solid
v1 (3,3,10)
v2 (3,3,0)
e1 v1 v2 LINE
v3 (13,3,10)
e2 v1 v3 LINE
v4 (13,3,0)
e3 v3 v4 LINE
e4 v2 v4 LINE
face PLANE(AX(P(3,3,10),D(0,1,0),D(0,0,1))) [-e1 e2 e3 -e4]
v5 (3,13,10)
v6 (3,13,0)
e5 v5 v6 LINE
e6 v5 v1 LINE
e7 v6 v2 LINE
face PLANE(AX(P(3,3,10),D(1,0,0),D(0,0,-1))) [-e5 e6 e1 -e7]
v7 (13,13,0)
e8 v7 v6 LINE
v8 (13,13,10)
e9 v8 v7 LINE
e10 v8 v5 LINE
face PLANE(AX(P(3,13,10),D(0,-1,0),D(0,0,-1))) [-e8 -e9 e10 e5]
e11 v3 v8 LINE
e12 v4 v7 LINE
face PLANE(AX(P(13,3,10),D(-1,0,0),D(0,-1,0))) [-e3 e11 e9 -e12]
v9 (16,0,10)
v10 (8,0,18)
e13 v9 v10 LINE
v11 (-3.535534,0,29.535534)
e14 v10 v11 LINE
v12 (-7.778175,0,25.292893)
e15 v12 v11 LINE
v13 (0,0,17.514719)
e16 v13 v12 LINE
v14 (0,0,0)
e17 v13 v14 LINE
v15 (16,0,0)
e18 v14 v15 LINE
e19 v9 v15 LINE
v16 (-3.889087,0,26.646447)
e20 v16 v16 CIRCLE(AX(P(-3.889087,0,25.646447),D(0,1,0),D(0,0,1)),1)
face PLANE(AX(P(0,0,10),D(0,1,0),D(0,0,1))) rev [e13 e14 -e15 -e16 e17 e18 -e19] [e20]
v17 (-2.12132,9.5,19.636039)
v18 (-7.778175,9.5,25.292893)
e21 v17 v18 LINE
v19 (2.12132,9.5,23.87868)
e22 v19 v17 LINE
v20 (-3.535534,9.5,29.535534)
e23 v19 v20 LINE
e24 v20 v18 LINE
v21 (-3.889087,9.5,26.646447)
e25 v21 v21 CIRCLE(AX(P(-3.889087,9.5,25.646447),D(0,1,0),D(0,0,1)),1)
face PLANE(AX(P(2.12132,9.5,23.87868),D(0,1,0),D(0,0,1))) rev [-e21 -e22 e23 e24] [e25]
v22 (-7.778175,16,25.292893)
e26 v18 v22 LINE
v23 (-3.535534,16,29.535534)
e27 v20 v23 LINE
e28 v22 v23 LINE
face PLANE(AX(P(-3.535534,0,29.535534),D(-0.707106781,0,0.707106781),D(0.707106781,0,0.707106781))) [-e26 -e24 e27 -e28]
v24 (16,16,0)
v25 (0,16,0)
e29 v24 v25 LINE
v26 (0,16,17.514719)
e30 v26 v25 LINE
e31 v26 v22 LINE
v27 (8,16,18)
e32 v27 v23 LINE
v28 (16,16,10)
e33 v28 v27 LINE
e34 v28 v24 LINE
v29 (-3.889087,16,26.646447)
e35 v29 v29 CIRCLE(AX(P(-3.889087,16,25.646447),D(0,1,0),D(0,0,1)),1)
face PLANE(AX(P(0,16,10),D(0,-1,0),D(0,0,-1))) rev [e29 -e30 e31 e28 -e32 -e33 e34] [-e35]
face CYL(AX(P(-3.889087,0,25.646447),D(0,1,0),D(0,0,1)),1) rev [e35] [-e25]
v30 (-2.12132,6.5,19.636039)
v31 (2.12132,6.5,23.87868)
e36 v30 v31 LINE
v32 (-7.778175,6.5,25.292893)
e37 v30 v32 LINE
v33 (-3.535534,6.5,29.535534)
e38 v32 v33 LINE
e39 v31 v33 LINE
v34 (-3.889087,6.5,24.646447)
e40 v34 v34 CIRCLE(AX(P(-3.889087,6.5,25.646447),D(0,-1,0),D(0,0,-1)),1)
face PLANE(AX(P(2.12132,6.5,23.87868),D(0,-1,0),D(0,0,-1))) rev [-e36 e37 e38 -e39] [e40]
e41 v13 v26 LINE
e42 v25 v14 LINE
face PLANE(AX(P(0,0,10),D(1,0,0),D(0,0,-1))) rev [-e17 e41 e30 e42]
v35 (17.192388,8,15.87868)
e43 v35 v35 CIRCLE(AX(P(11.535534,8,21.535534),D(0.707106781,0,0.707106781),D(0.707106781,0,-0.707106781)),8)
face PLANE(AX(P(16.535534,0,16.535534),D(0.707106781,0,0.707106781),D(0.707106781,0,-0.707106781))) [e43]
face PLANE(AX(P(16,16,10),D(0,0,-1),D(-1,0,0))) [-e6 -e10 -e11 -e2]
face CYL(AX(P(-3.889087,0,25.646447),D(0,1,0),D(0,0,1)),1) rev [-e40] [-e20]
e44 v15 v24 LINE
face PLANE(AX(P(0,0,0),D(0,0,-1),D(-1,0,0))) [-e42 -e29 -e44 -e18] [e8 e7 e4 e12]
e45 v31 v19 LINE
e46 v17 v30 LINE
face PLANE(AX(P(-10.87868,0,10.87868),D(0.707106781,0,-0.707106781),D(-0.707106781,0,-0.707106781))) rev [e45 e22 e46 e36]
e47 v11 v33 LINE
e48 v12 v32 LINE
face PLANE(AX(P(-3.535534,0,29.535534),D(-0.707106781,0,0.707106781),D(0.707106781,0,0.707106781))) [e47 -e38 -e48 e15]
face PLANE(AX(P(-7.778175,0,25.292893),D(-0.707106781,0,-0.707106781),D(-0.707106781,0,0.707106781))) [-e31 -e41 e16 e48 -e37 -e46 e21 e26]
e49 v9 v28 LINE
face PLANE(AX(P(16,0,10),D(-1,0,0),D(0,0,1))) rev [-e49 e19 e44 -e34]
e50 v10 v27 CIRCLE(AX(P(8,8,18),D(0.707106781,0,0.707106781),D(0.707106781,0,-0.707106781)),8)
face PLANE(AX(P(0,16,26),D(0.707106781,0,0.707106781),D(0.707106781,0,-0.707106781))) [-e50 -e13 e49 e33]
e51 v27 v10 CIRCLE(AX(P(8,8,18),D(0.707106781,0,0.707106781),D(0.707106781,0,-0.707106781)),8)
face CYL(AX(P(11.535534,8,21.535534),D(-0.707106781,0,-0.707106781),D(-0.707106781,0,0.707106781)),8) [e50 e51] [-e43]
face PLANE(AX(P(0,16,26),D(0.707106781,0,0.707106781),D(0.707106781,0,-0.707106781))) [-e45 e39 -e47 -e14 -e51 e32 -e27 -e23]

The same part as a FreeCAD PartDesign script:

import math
import FreeCAD as App
import Part
import Sketcher
from FreeCAD import Vector
Q = App.Units.Quantity

doc = App.newDocument("Part")
body = doc.addObject("PartDesign::Body", "Body")

sketch1 = body.newObject("Sketcher::SketchObject", "Sketch")
sketch1.AttachmentSupport = (doc.getObject("XY_Plane"), [""])
sketch1.MapMode = "FlatFace"
sketch1.addGeometry([
    Part.LineSegment(Vector(0, 16, 0), Vector(0, 0, 0)),
    Part.LineSegment(Vector(0, 0, 0), Vector(16, 0, 0)),
    Part.LineSegment(Vector(16, 0, 0), Vector(16, 16, 0)),
    Part.LineSegment(Vector(16, 16, 0), Vector(0, 16, 0)),
    Part.LineSegment(Vector(13, 3, 0), Vector(3, 3, 0)),
    Part.LineSegment(Vector(3, 3, 0), Vector(3, 13, 0)),
    Part.LineSegment(Vector(3, 13, 0), Vector(13, 13, 0)),
    Part.LineSegment(Vector(13, 13, 0), Vector(13, 3, 0)),
], False)
sketch1.addConstraint([
    Sketcher.Constraint("Coincident", 0, 2, 1, 1),
    Sketcher.Constraint("Coincident", 1, 2, 2, 1),
    Sketcher.Constraint("Coincident", 2, 2, 3, 1),
    Sketcher.Constraint("Coincident", 3, 2, 0, 1),
    Sketcher.Constraint("Coincident", 4, 2, 5, 1),
    Sketcher.Constraint("Coincident", 5, 2, 6, 1),
    Sketcher.Constraint("Coincident", 6, 2, 7, 1),
    Sketcher.Constraint("Coincident", 7, 2, 4, 1),
    Sketcher.Constraint("Vertical", 0),
    Sketcher.Constraint("Horizontal", 1),
    Sketcher.Constraint("Vertical", 2),
    Sketcher.Constraint("Horizontal", 3),
    Sketcher.Constraint("Horizontal", 4),
    Sketcher.Constraint("Vertical", 5),
    Sketcher.Constraint("Horizontal", 6),
    Sketcher.Constraint("Vertical", 7),
    Sketcher.Constraint("Coincident", 0, 2, -1, 1),
    Sketcher.Constraint("Equal", 3, 0),
    Sketcher.Constraint("Equal", 6, 5),
    Sketcher.Constraint("DistanceX", 1, 1, 1, 2, Q("16 mm")),
    Sketcher.Constraint("DistanceX", 4, 2, 4, 1, Q("10 mm")),
    Sketcher.Constraint("DistanceX", -1, 1, 4, 2, Q("3 mm")),
    Sketcher.Constraint("DistanceY", -1, 1, 4, 2, Q("3 mm")),
])
pad1 = body.newObject("PartDesign::Pad", "Pad")
pad1.Profile = sketch1
pad1.Length = 10

sketch2 = body.newObject("Sketcher::SketchObject", "Sketch001")
sketch2.AttachmentSupport = (doc.getObject("XZ_Plane"), [""])
sketch2.MapMode = "FlatFace"
sketch2.addGeometry([
    Part.LineSegment(Vector(0, 26, 0), Vector(0, 10, 0)),
    Part.LineSegment(Vector(0, 10, 0), Vector(16, 10, 0)),
    Part.LineSegment(Vector(16, 10, 0), Vector(0, 26, 0)),
], False)
sketch2.addConstraint([
    Sketcher.Constraint("Coincident", 0, 2, 1, 1),
    Sketcher.Constraint("Coincident", 1, 2, 2, 1),
    Sketcher.Constraint("Coincident", 2, 2, 0, 1),
    Sketcher.Constraint("Vertical", 0),
    Sketcher.Constraint("Horizontal", 1),
    Sketcher.Constraint("PointOnObject", 0, 2, -2),
    Sketcher.Constraint("Equal", 1, 0),
    Sketcher.Constraint("DistanceX", 1, 1, 1, 2, Q("16 mm")),
    Sketcher.Constraint("DistanceY", -1, 1, 0, 2, Q("10 mm")),
])
pad2 = body.newObject("PartDesign::Pad", "Pad001")
pad2.Profile = sketch2
pad2.Length = 16
pad2.Reversed = True

sketch3 = body.newObject("Sketcher::SketchObject", "Sketch002")
sketch3.Placement = App.Placement(Vector(13, 0, 13), App.Rotation(Vector(0.707106781, 0, -0.707106781), Vector(0, 0.999999999, 0), Vector(0.707106781, 0, 0.707106781), "ZXY"))
sketch3.addGeometry([
    Part.ArcOfCircle(Part.Circle(Vector(-7.071068, 8, 0), Vector(0, 0, 1), 8), math.radians(90), math.radians(270)),
    Part.ArcOfCircle(Part.Circle(Vector(-7.071068, 8, 0), Vector(0, 0, 1), 8), math.radians(-90), math.radians(0)),
    Part.ArcOfCircle(Part.Circle(Vector(-7.071068, 8, 0), Vector(0, 0, 1), 8), math.radians(0), math.radians(90)),
], False)
sketch3.addConstraint([
    Sketcher.Constraint("Tangent", 0, 2, 1, 1),
    Sketcher.Constraint("Tangent", 1, 2, 2, 1),
    Sketcher.Constraint("Tangent", 2, 2, 0, 1),
    Sketcher.Constraint("PointOnObject", 0, 2, -1),
    Sketcher.Constraint("Horizontal", 2, 3, 1, 2),
    Sketcher.Constraint("Vertical", 2, 3, 0, 2),
    Sketcher.Constraint("Vertical", 0, 2, 2, 2),
    Sketcher.Constraint("Radius", 0, Q("8 mm")),
    Sketcher.Constraint("DistanceX", 0, 3, -1, 1, Q("7.071068 mm")),
])
pad3 = body.newObject("PartDesign::Pad", "Pad002")
pad3.Profile = sketch3
pad3.Length = 5

sketch4 = body.newObject("Sketcher::SketchObject", "Sketch003")
sketch4.AttachmentSupport = (doc.getObject("XZ_Plane"), [""])
sketch4.MapMode = "FlatFace"
sketch4.AttachmentOffset = App.Placement(Vector(0, 0, -16), App.Rotation())
sketch4.addGeometry([
    Part.LineSegment(Vector(-3.535534, 29.535534, 0), Vector(0, 26, 0)),
    Part.LineSegment(Vector(0, 26, 0), Vector(0, 17.514719, 0)),
    Part.LineSegment(Vector(0, 17.514719, 0), Vector(-7.778175, 25.292893, 0)),
    Part.LineSegment(Vector(-7.778175, 25.292893, 0), Vector(-3.535534, 29.535534, 0)),
], False)
sketch4.addConstraint([
    Sketcher.Constraint("Coincident", 0, 2, 1, 1),
    Sketcher.Constraint("Coincident", 1, 2, 2, 1),
    Sketcher.Constraint("Coincident", 2, 2, 3, 1),
    Sketcher.Constraint("Coincident", 3, 2, 0, 1),
    Sketcher.Constraint("Vertical", 1),
    Sketcher.Constraint("PointOnObject", 0, 2, -2),
    Sketcher.Constraint("Parallel", 0, 2),
    Sketcher.Constraint("Perpendicular", 2, 3),
    Sketcher.Constraint("Angle", 0, Q("-45 deg")),
    Sketcher.Constraint("Distance", 0, Q("5 mm")),
    Sketcher.Constraint("Distance", 2, Q("11 mm")),
    Sketcher.Constraint("DistanceY", -1, 1, 0, 2, Q("26 mm")),
])
pad4 = body.newObject("PartDesign::Pad", "Pad003")
pad4.Profile = sketch4
pad4.Length = 16

sketch5 = body.newObject("Sketcher::SketchObject", "Sketch004")
sketch5.Placement = App.Placement(Vector(-16.535534, 0, 16.535534), App.Rotation(Vector(0.707106781, 0, 0.707106781), Vector(0, 0.999999999, 0), Vector(-0.707106781, 0, 0.707106781), "ZXY"))
sketch5.addGeometry([
    Part.LineSegment(Vector(12.384776, 9.5, 0), Vector(12.384776, 6.5, 0)),
    Part.LineSegment(Vector(12.384776, 6.5, 0), Vector(18.384776, 6.5, 0)),
    Part.LineSegment(Vector(18.384776, 6.5, 0), Vector(18.384776, 9.5, 0)),
    Part.LineSegment(Vector(18.384776, 9.5, 0), Vector(12.384776, 9.5, 0)),
], False)
sketch5.addConstraint([
    Sketcher.Constraint("Coincident", 0, 2, 1, 1),
    Sketcher.Constraint("Coincident", 1, 2, 2, 1),
    Sketcher.Constraint("Coincident", 2, 2, 3, 1),
    Sketcher.Constraint("Coincident", 3, 2, 0, 1),
    Sketcher.Constraint("Vertical", 0),
    Sketcher.Constraint("Horizontal", 1),
    Sketcher.Constraint("Vertical", 2),
    Sketcher.Constraint("Horizontal", 3),
    Sketcher.Constraint("DistanceX", 1, 1, 1, 2, Q("6 mm")),
    Sketcher.Constraint("DistanceY", 0, 2, 0, 1, Q("3 mm")),
    Sketcher.Constraint("DistanceY", -1, 1, 0, 2, Q("6.5 mm")),
    Sketcher.Constraint("DistanceX", -1, 1, 0, 2, Q("12.384776 mm")),
])
pocket1 = body.newObject("PartDesign::Pocket", "Pocket")
pocket1.Profile = sketch5
pocket1.Length = 8

sketch6 = body.newObject("Sketcher::SketchObject", "Sketch005")
sketch6.AttachmentSupport = (doc.getObject("XZ_Plane"), [""])
sketch6.MapMode = "FlatFace"
sketch6.AttachmentOffset = App.Placement(Vector(0, 0, -16), App.Rotation())
sketch6.addGeometry([
    Part.ArcOfCircle(Part.Circle(Vector(-3.889087, 25.646447, 0), Vector(0, 0, 1), 1), math.radians(45), math.radians(225)),
    Part.ArcOfCircle(Part.Circle(Vector(-3.889087, 25.646447, 0), Vector(0, 0, 1), 1), math.radians(0), math.radians(45)),
    Part.ArcOfCircle(Part.Circle(Vector(-3.889087, 25.646447, 0), Vector(0, 0, 1), 1), math.radians(-135), math.radians(0)),
], False)
sketch6.addConstraint([
    Sketcher.Constraint("Tangent", 0, 1, 1, 2),
    Sketcher.Constraint("Tangent", 1, 1, 2, 2),
    Sketcher.Constraint("Tangent", 2, 1, 0, 2),
    Sketcher.Constraint("Horizontal", 2, 3, 1, 1),
    Sketcher.Constraint("Radius", 0, Q("1 mm")),
    Sketcher.Constraint("DistanceX", 0, 1, -1, 1, Q("3.181981 mm")),
    Sketcher.Constraint("DistanceY", -1, 1, 2, 1, Q("24.93934 mm")),
    Sketcher.Constraint("DistanceX", 0, 3, -1, 1, Q("3.889087 mm")),
    Sketcher.Constraint("DistanceY", -1, 1, 0, 3, Q("25.646447 mm")),
])
pocket2 = body.newObject("PartDesign::Pocket", "Pocket001")
pocket2.Profile = sketch6
pocket2.Length = 16
pocket2.Reversed = True

doc.recompute()
